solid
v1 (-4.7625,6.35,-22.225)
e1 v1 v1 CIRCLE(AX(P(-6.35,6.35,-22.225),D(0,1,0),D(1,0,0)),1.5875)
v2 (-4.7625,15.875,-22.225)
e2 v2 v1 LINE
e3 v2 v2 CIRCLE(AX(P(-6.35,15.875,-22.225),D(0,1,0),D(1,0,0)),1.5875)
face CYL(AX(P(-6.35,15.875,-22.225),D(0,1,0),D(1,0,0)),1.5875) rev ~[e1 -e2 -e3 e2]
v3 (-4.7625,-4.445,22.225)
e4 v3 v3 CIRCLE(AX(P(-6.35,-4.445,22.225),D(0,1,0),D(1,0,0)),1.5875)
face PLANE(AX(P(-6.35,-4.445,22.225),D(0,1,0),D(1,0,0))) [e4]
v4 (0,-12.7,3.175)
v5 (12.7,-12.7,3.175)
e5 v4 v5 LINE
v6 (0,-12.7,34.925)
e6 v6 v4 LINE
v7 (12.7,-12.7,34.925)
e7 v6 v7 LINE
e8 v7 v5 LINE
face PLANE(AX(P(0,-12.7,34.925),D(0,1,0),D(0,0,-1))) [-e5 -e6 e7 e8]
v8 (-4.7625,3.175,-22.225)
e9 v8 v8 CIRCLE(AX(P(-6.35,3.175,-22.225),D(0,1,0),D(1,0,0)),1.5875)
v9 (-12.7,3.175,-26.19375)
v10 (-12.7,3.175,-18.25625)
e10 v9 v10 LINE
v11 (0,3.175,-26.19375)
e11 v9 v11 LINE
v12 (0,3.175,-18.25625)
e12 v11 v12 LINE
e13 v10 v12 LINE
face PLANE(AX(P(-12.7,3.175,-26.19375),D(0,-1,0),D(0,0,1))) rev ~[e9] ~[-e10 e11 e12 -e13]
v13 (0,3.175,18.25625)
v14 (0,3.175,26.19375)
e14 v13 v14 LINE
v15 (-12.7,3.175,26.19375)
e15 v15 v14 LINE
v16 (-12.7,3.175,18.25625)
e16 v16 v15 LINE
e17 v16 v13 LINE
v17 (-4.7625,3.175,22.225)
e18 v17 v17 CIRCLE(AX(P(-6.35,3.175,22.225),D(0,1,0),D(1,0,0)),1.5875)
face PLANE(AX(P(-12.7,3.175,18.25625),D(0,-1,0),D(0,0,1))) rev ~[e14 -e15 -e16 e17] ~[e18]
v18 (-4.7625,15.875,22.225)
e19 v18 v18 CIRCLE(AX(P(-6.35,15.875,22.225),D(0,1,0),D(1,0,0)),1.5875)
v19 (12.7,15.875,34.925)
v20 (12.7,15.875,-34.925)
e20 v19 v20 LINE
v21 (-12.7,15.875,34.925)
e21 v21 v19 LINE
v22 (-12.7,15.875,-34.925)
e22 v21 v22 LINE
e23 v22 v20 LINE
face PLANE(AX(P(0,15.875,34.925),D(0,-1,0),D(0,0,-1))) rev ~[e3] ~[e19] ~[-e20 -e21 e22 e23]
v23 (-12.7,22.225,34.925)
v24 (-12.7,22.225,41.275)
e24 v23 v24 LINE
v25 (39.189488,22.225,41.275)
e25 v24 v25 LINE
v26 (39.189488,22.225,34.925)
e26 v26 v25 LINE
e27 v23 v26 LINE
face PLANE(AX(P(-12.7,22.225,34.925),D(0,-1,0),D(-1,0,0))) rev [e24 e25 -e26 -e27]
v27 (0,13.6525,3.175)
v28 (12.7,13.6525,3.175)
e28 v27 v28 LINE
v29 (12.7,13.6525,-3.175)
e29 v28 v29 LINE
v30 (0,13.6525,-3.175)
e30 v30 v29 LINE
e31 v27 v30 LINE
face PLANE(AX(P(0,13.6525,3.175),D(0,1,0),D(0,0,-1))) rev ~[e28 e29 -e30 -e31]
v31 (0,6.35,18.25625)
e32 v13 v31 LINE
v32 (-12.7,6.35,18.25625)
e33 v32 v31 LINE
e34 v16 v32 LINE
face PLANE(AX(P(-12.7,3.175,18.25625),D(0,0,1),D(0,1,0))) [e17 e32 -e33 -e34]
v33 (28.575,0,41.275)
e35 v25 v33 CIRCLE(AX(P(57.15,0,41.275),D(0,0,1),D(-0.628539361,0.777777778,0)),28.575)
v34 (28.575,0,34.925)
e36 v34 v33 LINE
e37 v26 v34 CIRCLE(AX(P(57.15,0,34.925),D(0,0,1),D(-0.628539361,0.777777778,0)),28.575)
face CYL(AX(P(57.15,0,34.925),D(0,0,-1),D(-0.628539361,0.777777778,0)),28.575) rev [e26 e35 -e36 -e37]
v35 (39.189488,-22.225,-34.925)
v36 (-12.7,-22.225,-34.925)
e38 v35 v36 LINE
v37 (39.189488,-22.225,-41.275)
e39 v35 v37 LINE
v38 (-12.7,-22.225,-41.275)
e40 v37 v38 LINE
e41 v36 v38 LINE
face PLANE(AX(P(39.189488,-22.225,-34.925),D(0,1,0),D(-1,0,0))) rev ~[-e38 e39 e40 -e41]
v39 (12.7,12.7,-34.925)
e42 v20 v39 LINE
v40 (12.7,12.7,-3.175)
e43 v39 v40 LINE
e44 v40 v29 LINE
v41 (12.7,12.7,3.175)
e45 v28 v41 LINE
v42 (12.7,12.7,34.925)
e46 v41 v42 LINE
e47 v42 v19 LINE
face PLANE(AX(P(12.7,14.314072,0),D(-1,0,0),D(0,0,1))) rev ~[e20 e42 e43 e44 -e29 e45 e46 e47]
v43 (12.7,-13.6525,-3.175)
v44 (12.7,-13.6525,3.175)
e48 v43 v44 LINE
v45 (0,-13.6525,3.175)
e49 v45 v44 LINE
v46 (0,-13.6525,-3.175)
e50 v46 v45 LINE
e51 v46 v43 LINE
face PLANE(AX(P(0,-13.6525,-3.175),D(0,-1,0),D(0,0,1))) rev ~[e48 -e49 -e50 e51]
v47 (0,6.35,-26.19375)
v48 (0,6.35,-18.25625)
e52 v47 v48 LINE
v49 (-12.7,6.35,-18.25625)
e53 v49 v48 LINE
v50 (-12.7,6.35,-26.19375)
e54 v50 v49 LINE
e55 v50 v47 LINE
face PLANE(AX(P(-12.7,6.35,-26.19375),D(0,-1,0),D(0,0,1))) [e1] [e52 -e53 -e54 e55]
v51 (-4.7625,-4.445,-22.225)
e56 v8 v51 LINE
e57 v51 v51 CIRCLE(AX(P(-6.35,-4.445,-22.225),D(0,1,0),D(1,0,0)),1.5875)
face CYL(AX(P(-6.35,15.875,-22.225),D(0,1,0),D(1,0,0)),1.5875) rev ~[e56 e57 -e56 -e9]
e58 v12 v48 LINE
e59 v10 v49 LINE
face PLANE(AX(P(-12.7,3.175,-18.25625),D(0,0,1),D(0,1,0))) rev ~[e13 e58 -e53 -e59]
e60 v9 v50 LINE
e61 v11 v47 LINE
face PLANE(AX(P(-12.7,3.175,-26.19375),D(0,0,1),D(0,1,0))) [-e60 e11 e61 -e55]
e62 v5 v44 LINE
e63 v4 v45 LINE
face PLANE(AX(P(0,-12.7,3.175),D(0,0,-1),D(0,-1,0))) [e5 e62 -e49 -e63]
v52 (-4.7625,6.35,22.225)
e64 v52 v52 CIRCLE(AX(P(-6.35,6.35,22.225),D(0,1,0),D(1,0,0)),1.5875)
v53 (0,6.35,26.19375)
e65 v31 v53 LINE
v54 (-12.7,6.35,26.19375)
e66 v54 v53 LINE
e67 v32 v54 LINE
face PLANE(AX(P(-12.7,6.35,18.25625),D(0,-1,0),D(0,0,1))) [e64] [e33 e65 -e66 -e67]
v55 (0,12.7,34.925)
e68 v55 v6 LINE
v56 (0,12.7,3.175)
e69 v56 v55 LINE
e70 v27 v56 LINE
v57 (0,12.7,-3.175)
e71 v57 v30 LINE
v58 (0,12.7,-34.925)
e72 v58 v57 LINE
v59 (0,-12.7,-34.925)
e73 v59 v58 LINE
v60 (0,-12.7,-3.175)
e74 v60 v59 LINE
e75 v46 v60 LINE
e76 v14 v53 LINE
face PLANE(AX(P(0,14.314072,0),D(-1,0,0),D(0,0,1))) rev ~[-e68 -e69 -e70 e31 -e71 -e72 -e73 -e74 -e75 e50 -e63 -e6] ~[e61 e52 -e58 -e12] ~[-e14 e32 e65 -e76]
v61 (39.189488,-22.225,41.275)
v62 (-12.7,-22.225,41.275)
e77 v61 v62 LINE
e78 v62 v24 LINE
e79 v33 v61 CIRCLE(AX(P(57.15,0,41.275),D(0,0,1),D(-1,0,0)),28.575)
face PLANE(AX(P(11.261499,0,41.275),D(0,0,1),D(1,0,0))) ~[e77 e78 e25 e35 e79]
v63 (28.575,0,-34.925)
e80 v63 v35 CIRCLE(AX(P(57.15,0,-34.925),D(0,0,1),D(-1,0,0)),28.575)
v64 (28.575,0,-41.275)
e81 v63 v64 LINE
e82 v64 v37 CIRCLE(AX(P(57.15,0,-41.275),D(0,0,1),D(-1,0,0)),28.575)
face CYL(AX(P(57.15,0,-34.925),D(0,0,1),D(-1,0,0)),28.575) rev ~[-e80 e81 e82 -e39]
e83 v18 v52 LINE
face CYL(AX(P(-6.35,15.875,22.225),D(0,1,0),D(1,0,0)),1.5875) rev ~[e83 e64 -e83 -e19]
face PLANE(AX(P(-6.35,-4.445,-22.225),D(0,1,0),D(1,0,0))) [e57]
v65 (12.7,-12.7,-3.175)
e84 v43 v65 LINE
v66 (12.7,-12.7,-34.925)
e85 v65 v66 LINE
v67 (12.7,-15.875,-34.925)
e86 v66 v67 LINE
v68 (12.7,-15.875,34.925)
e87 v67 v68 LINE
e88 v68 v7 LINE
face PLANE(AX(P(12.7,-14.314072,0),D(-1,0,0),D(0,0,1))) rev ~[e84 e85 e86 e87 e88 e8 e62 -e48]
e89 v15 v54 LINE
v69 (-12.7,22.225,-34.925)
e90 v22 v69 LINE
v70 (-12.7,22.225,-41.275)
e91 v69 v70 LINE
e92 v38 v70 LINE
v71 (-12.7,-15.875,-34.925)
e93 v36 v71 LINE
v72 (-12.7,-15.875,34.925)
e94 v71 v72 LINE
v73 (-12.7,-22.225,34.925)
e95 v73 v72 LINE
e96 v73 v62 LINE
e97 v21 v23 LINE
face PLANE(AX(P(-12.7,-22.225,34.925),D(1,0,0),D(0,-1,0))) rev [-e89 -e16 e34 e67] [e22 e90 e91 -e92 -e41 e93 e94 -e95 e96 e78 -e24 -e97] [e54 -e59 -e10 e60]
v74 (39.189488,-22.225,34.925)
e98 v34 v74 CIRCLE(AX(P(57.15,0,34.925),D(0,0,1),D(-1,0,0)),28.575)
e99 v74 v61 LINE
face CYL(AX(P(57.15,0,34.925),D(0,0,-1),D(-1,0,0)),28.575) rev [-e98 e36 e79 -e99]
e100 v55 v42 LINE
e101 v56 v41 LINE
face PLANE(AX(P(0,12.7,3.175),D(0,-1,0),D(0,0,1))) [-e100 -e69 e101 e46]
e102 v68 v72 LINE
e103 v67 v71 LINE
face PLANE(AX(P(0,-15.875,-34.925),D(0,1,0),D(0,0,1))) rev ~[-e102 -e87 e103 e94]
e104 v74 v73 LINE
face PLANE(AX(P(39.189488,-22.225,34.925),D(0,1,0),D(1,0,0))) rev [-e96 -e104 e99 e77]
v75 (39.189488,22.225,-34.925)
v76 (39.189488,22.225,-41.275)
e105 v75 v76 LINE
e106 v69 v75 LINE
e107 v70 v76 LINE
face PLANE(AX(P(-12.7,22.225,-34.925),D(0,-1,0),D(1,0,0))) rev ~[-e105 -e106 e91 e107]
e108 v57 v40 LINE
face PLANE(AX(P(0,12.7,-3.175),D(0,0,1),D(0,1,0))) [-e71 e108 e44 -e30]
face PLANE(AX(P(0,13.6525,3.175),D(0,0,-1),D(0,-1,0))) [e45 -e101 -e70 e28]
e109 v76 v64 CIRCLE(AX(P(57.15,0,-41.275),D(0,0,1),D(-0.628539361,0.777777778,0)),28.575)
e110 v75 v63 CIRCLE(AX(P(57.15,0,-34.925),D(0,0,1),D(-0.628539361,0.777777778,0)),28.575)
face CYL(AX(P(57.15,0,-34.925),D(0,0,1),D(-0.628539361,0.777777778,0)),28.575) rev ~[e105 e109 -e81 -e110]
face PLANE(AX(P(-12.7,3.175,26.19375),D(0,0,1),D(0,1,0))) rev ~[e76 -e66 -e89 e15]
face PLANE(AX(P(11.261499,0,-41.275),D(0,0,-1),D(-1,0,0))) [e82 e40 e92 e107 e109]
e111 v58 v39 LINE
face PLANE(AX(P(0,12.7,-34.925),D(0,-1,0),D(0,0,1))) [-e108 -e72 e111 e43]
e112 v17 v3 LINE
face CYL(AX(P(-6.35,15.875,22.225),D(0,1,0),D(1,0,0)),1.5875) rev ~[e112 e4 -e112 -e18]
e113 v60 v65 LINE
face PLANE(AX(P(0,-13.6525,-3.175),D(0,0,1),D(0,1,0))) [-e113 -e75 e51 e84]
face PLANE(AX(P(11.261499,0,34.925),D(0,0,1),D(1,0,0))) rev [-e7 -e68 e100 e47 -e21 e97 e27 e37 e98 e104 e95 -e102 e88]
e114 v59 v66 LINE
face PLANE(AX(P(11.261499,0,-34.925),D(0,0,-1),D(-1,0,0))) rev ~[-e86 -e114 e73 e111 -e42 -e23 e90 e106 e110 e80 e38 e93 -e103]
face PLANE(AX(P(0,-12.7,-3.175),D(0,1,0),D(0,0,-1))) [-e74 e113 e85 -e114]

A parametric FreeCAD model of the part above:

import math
import FreeCAD as App
import Part
import Sketcher
from FreeCAD import Vector
Q = App.Units.Quantity

doc = App.newDocument("Part")
body = doc.addObject("PartDesign::Body", "Body")

# Sketch on YZ plane
sketch1 = body.newObject("Sketcher::SketchObject", "Sketch")
sketch1.AttachmentSupport = (doc.getObject("YZ_Plane"), [""])
sketch1.MapMode = "FlatFace"
sketch1.addGeometry(Part.LineSegment(Vector(12.7, -34.925, 0), Vector(15.875, -34.925, 0)), False)
sketch1.addGeometry(Part.LineSegment(Vector(15.875, -34.925, 0), Vector(15.875, 34.925, 0)), False)
sketch1.addGeometry(Part.LineSegment(Vector(15.875, 34.925, 0), Vector(12.7, 34.925, 0)), False)
sketch1.addGeometry(Part.LineSegment(Vector(12.7, 34.925, 0), Vector(12.7, 3.175, 0)), False)
sketch1.addGeometry(Part.LineSegment(Vector(12.7, 3.175, 0), Vector(13.6525, 3.175, 0)), False)
sketch1.addGeometry(Part.LineSegment(Vector(13.6525, 3.175, 0), Vector(13.6525, -3.175, 0)), False)
sketch1.addGeometry(Part.LineSegment(Vector(13.6525, -3.175, 0), Vector(12.7, -3.175, 0)), False)
sketch1.addGeometry(Part.LineSegment(Vector(12.7, -3.175, 0), Vector(12.7, -34.925, 0)), False)
sketch1.addConstraint(Sketcher.Constraint("Coincident", 0, 2, 1, 1))
sketch1.addConstraint(Sketcher.Constraint("Coincident", 1, 2, 2, 1))
sketch1.addConstraint(Sketcher.Constraint("Coincident", 2, 2, 3, 1))
sketch1.addConstraint(Sketcher.Constraint("Coincident", 3, 2, 4, 1))
sketch1.addConstraint(Sketcher.Constraint("Coincident", 4, 2, 5, 1))
sketch1.addConstraint(Sketcher.Constraint("Coincident", 5, 2, 6, 1))
sketch1.addConstraint(Sketcher.Constraint("Coincident", 6, 2, 7, 1))
sketch1.addConstraint(Sketcher.Constraint("Coincident", 7, 2, 0, 1))
sketch1.addConstraint(Sketcher.Constraint("Horizontal", 0))
sketch1.addConstraint(Sketcher.Constraint("Vertical", 1))
sketch1.addConstraint(Sketcher.Constraint("Horizontal", 2))
sketch1.addConstraint(Sketcher.Constraint("Vertical", 3))
sketch1.addConstraint(Sketcher.Constraint("Horizontal", 4))
sketch1.addConstraint(Sketcher.Constraint("Vertical", 5))
sketch1.addConstraint(Sketcher.Constraint("Horizontal", 6))
sketch1.addConstraint(Sketcher.Constraint("Vertical", 7))
sketch1.addConstraint(Sketcher.Constraint("Symmetric", 3, 2, 6, 2, -1))
sketch1.addConstraint(Sketcher.Constraint("Equal", 3, 7))
sketch1.addConstraint(Sketcher.Constraint("DistanceY", 1, 1, 1, 2, Q("2.75 in")))
sketch1.addConstraint(Sketcher.Constraint("DistanceY", 3, 2, 3, 1, Q("1.25 in")))
sketch1.addConstraint(Sketcher.Constraint("DistanceX", -1, 1, 2, 2, Q("0.5 in")))
sketch1.addConstraint(Sketcher.Constraint("DistanceX", 0, 1, 0, 2, Q("0.125 in")))
sketch1.addConstraint(Sketcher.Constraint("DistanceX", 4, 1, 4, 2, Q("0.0375 in")))
pad1 = body.newObject("PartDesign::Pad", "Pad")
pad1.Profile = sketch1
pad1.Length = Q("0.5 in")
body2 = doc.addObject("PartDesign::Body", "Body001")

# Sketch on YZ plane
sketch2 = body2.newObject("Sketcher::SketchObject", "Sketch001")
sketch2.AttachmentSupport = (doc.getObject("YZ_Plane001"), [""])
sketch2.MapMode = "FlatFace"
sketch2.addGeometry(Part.LineSegment(Vector(-12.7, 34.925, 0), Vector(-15.875, 34.925, 0)), False)
sketch2.addGeometry(Part.LineSegment(Vector(-15.875, 34.925, 0), Vector(-15.875, -34.925, 0)), False)
sketch2.addGeometry(Part.LineSegment(Vector(-15.875, -34.925, 0), Vector(-12.7, -34.925, 0)), False)
sketch2.addGeometry(Part.LineSegment(Vector(-12.7, -34.925, 0), Vector(-12.7, -3.175, 0)), False)
sketch2.addGeometry(Part.LineSegment(Vector(-12.7, -3.175, 0), Vector(-13.6525, -3.175, 0)), False)
sketch2.addGeometry(Part.LineSegment(Vector(-13.6525, -3.175, 0), Vector(-13.6525, 3.175, 0)), False)
sketch2.addGeometry(Part.LineSegment(Vector(-13.6525, 3.175, 0), Vector(-12.7, 3.175, 0)), False)
sketch2.addGeometry(Part.LineSegment(Vector(-12.7, 3.175, 0), Vector(-12.7, 34.925, 0)), False)
sketch2.addConstraint(Sketcher.Constraint("Coincident", 0, 2, 1, 1))
sketch2.addConstraint(Sketcher.Constraint("Coincident", 1, 2, 2, 1))
sketch2.addConstraint(Sketcher.Constraint("Coincident", 2, 2, 3, 1))
sketch2.addConstraint(Sketcher.Constraint("Coincident", 3, 2, 4, 1))
sketch2.addConstraint(Sketcher.Constraint("Coincident", 4, 2, 5, 1))
sketch2.addConstraint(Sketcher.Constraint("Coincident", 5, 2, 6, 1))
sketch2.addConstraint(Sketcher.Constraint("Coincident", 6, 2, 7, 1))
sketch2.addConstraint(Sketcher.Constraint("Coincident", 7, 2, 0, 1))
sketch2.addConstraint(Sketcher.Constraint("Horizontal", 0))
sketch2.addConstraint(Sketcher.Constraint("Vertical", 1))
sketch2.addConstraint(Sketcher.Constraint("Horizontal", 2))
sketch2.addConstraint(Sketcher.Constraint("Vertical", 3))
sketch2.addConstraint(Sketcher.Constraint("Horizontal", 4))
sketch2.addConstraint(Sketcher.Constraint("Vertical", 5))
sketch2.addConstraint(Sketcher.Constraint("Horizontal", 6))
sketch2.addConstraint(Sketcher.Constraint("Vertical", 7))
sketch2.addConstraint(Sketcher.Constraint("Symmetric", 3, 2, 6, 2, -1))
sketch2.addConstraint(Sketcher.Constraint("Equal", 3, 7))
sketch2.addConstraint(Sketcher.Constraint("DistanceY", 1, 2, 1, 1, Q("2.75 in")))
sketch2.addConstraint(Sketcher.Constraint("DistanceY", 3, 1, 3, 2, Q("1.25 in")))
sketch2.addConstraint(Sketcher.Constraint("DistanceX", 2, 2, -1, 1, Q("0.5 in")))
sketch2.addConstraint(Sketcher.Constraint("DistanceX", 0, 2, 0, 1, Q("0.125 in")))
sketch2.addConstraint(Sketcher.Constraint("DistanceX", 4, 2, 4, 1, Q("0.0375 in")))
pad2 = body2.newObject("PartDesign::Pad", "Pad001")
pad2.Profile = sketch2
pad2.Length = Q("0.5 in")
body.AllowCompound = True
doc.recompute()

boolean = body.newObject("PartDesign::Boolean", "Boolean")
boolean.Type = "Fuse"
boolean.addObjects([body2])

# Sketch on YZ plane
sketch3 = body.newObject("Sketcher::SketchObject", "Sketch002")
sketch3.AttachmentSupport = (doc.getObject("YZ_Plane"), [""])
sketch3.MapMode = "FlatFace"
sketch3.addGeometry(Part.LineSegment(Vector(-15.875, -34.925, 0), Vector(15.875, -34.925, 0)), False)
sketch3.addGeometry(Part.LineSegment(Vector(15.875, -34.925, 0), Vector(15.875, 34.925, 0)), False)
sketch3.addGeometry(Part.LineSegment(Vector(15.875, 34.925, 0), Vector(-15.875, 34.925, 0)), False)
sketch3.addGeometry(Part.LineSegment(Vector(-15.875, 34.925, 0), Vector(-15.875, -34.925, 0)), False)
sketch3.addConstraint(Sketcher.Constraint("Coincident", 0, 2, 1, 1))
sketch3.addConstraint(Sketcher.Constraint("Coincident", 1, 2, 2, 1))
sketch3.addConstraint(Sketcher.Constraint("Coincident", 2, 2, 3, 1))
sketch3.addConstraint(Sketcher.Constraint("Coincident", 3, 2, 0, 1))
sketch3.addConstraint(Sketcher.Constraint("Horizontal", 0))
sketch3.addConstraint(Sketcher.Constraint("Vertical", 1))
sketch3.addConstraint(Sketcher.Constraint("Horizontal", 2))
sketch3.addConstraint(Sketcher.Constraint("Vertical", 3))
sketch3.addConstraint(Sketcher.Constraint("Symmetric", 0, 2, 2, 2, -1, 1))
sketch3.addConstraint(Sketcher.Constraint("DistanceX", 0, 1, 0, 2, Q("1.25 in")))
sketch3.addConstraint(Sketcher.Constraint("DistanceY", 1, 1, 1, 2, Q("2.75 in")))
pad3 = body.newObject("PartDesign::Pad", "Pad002")
pad3.Profile = sketch3
pad3.Length = Q("0.5 in")
pad3.Reversed = True

# Sketch on XY plane
sketch4 = body.newObject("Sketcher::SketchObject", "Sketch003")
sketch4.AttachmentSupport = (doc.getObject("XY_Plane"), [""])
sketch4.MapMode = "FlatFace"
sketch4.AttachmentOffset = App.Placement(Vector(0, 0, -1.375 * 25.4), App.Rotation())
sketch4.addGeometry(Part.LineSegment(Vector(39.189488, -22.225, 0), Vector(-12.7, -22.225, 0)), False)
sketch4.addGeometry(Part.LineSegment(Vector(-12.7, -22.225, 0), Vector(-12.7, 22.225, 0)), False)
sketch4.addGeometry(Part.LineSegment(Vector(-12.7, 22.225, 0), Vector(39.189488, 22.225, 0)), False)
sketch4.addGeometry(Part.ArcOfCircle(Part.Circle(Vector(57.15, 0, 0), Vector(0, 0, 1), 28.575), math.radians(128.942441), math.radians(180)), False)
sketch4.addGeometry(Part.ArcOfCircle(Part.Circle(Vector(57.15, 0, 0), Vector(0, 0, 1), 28.575), math.radians(180), math.radians(231.057559)), False)
sketch4.addConstraint(Sketcher.Constraint("Coincident", 0, 2, 1, 1))
sketch4.addConstraint(Sketcher.Constraint("Coincident", 1, 2, 2, 1))
sketch4.addConstraint(Sketcher.Constraint("Coincident", 2, 2, 3, 1))
sketch4.addConstraint(Sketcher.Constraint("Tangent", 3, 2, 4, 1))
sketch4.addConstraint(Sketcher.Constraint("Coincident", 4, 2, 0, 1))
sketch4.addConstraint(Sketcher.Constraint("Horizontal", 0))
sketch4.addConstraint(Sketcher.Constraint("Vertical", 1))
sketch4.addConstraint(Sketcher.Constraint("Horizontal", 2))
sketch4.addConstraint(Sketcher.Constraint("Equal", 3, 4))
sketch4.addConstraint(Sketcher.Constraint("Symmetric", 2, 2, 4, 2, -1))
sketch4.addConstraint(Sketcher.Constraint("PointOnObject", 3, 2, -1))
sketch4.addConstraint(Sketcher.Constraint("Radius", 3, Q("1.125 in")))
sketch4.addConstraint(Sketcher.Constraint("DistanceY", 1, 1, 1, 2, Q("1.75 in")))
sketch4.addConstraint(Sketcher.Constraint("DistanceX", 0, 2, -1, 1, Q("0.5 in")))
sketch4.addConstraint(Sketcher.Constraint("DistanceX", -1, 1, 3, 3, Q("2.25 in")))
pad4 = body.newObject("PartDesign::Pad", "Pad003")
pad4.Profile = sketch4
pad4.Length = Q("0.25 in")
pad4.Reversed = True
doc.recompute()

mirrored = body.newObject("PartDesign::Mirrored", "Mirrored")
mirrored.Originals = [pad4]
mirrored.MirrorPlane = (doc.getObject("XY_Plane"), [""])
body.Tip = mirrored

# Sketch on XZ plane
sketch5 = body.newObject("Sketcher::SketchObject", "Sketch004")
sketch5.AttachmentSupport = (doc.getObject("XZ_Plane"), [""])
sketch5.MapMode = "FlatFace"
sketch5.AttachmentOffset = App.Placement(Vector(0, 0, -0.625 * 25.4), App.Rotation())
sketch5.addGeometry(Part.Circle(Vector(-6.35, -22.225, 0), Vector(0, 0, 1), 1.5875), False)
sketch5.addGeometry(Part.Circle(Vector(-6.35, 22.225, 0), Vector(0, 0, 1), 1.5875), False)
sketch5.addConstraint(Sketcher.Constraint("Equal", 0, 1))
sketch5.addConstraint(Sketcher.Constraint("Symmetric", 0, 3, 1, 3, -1))
sketch5.addConstraint(Sketcher.Constraint("Diameter", 0, Q("0.125 in")))
sketch5.addConstraint(Sketcher.Constraint("DistanceX", 0, 3, -1, 1, Q("0.25 in")))
sketch5.addConstraint(Sketcher.Constraint("DistanceY", 0, 3, 1, 3, Q("1.75 in")))
pocket1 = body.newObject("PartDesign::Pocket", "Pocket")
pocket1.Profile = sketch5
pocket1.Length = Q("0.8 in")
pocket1.Reversed = True

# Sketch on YZ plane
sketch6 = body.newObject("Sketcher::SketchObject", "Sketch005")
sketch6.AttachmentSupport = (doc.getObject("YZ_Plane"), [""])
sketch6.MapMode = "FlatFace"
sketch6.AttachmentOffset = App.Placement(Vector(0, 0, -0.5 * 25.4), App.Rotation())
sketch6.addGeometry(Part.LineSegment(Vector(6.35, -26.19375, 0), Vector(3.175, -26.19375, 0)), False)
sketch6.addGeometry(Part.LineSegment(Vector(3.175, -26.19375, 0), Vector(3.175, -18.25625, 0)), False)
sketch6.addGeometry(Part.LineSegment(Vector(3.175, -18.25625, 0), Vector(6.35, -18.25625, 0)), False)
sketch6.addGeometry(Part.LineSegment(Vector(6.35, -18.25625, 0), Vector(6.35, -26.19375, 0)), False)
sketch6.addGeometry(Part.LineSegment(Vector(6.35, 18.25625, 0), Vector(3.175, 18.25625, 0)), False)
sketch6.addGeometry(Part.LineSegment(Vector(3.175, 18.25625, 0), Vector(3.175, 26.19375, 0)), False)
sketch6.addGeometry(Part.LineSegment(Vector(3.175, 26.19375, 0), Vector(6.35, 26.19375, 0)), False)
sketch6.addGeometry(Part.LineSegment(Vector(6.35, 26.19375, 0), Vector(6.35, 18.25625, 0)), False)
sketch6.addConstraint(Sketcher.Constraint("Coincident", 0, 2, 1, 1))
sketch6.addConstraint(Sketcher.Constraint("Coincident", 1, 2, 2, 1))
sketch6.addConstraint(Sketcher.Constraint("Coincident", 2, 2, 3, 1))
sketch6.addConstraint(Sketcher.Constraint("Coincident", 3, 2, 0, 1))
sketch6.addConstraint(Sketcher.Constraint("Coincident", 4, 2, 5, 1))
sketch6.addConstraint(Sketcher.Constraint("Coincident", 5, 2, 6, 1))
sketch6.addConstraint(Sketcher.Constraint("Coincident", 6, 2, 7, 1))
sketch6.addConstraint(Sketcher.Constraint("Coincident", 7, 2, 4, 1))
sketch6.addConstraint(Sketcher.Constraint("Horizontal", 0))
sketch6.addConstraint(Sketcher.Constraint("Vertical", 1))
sketch6.addConstraint(Sketcher.Constraint("Horizontal", 2))
sketch6.addConstraint(Sketcher.Constraint("Vertical", 3))
sketch6.addConstraint(Sketcher.Constraint("Horizontal", 4))
sketch6.addConstraint(Sketcher.Constraint("Vertical", 5))
sketch6.addConstraint(Sketcher.Constraint("Horizontal", 6))
sketch6.addConstraint(Sketcher.Constraint("Vertical", 7))
sketch6.addConstraint(Sketcher.Constraint("Symmetric", 1, 2, 4, 2, -1))
sketch6.addConstraint(Sketcher.Constraint("Symmetric", 3, 2, 6, 2, -1))
sketch6.addConstraint(Sketcher.Constraint("DistanceX", 0, 2, 0, 1, Q("0.125 in")))
sketch6.addConstraint(Sketcher.Constraint("DistanceY", 1, 1, 1, 2, Q("0.3125 in")))
sketch6.addConstraint(Sketcher.Constraint("DistanceX", -1, 1, 2, 2, Q("0.25 in")))
sketch6.addConstraint(Sketcher.Constraint("DistanceY", 0, 2, 4, 2, Q("1.75 in")))
pocket2 = body.newObject("PartDesign::Pocket", "Pocket001")
pocket2.Profile = sketch6
pocket2.Length = Q("0.5 in")
pocket2.Reversed = True

doc.recompute()
